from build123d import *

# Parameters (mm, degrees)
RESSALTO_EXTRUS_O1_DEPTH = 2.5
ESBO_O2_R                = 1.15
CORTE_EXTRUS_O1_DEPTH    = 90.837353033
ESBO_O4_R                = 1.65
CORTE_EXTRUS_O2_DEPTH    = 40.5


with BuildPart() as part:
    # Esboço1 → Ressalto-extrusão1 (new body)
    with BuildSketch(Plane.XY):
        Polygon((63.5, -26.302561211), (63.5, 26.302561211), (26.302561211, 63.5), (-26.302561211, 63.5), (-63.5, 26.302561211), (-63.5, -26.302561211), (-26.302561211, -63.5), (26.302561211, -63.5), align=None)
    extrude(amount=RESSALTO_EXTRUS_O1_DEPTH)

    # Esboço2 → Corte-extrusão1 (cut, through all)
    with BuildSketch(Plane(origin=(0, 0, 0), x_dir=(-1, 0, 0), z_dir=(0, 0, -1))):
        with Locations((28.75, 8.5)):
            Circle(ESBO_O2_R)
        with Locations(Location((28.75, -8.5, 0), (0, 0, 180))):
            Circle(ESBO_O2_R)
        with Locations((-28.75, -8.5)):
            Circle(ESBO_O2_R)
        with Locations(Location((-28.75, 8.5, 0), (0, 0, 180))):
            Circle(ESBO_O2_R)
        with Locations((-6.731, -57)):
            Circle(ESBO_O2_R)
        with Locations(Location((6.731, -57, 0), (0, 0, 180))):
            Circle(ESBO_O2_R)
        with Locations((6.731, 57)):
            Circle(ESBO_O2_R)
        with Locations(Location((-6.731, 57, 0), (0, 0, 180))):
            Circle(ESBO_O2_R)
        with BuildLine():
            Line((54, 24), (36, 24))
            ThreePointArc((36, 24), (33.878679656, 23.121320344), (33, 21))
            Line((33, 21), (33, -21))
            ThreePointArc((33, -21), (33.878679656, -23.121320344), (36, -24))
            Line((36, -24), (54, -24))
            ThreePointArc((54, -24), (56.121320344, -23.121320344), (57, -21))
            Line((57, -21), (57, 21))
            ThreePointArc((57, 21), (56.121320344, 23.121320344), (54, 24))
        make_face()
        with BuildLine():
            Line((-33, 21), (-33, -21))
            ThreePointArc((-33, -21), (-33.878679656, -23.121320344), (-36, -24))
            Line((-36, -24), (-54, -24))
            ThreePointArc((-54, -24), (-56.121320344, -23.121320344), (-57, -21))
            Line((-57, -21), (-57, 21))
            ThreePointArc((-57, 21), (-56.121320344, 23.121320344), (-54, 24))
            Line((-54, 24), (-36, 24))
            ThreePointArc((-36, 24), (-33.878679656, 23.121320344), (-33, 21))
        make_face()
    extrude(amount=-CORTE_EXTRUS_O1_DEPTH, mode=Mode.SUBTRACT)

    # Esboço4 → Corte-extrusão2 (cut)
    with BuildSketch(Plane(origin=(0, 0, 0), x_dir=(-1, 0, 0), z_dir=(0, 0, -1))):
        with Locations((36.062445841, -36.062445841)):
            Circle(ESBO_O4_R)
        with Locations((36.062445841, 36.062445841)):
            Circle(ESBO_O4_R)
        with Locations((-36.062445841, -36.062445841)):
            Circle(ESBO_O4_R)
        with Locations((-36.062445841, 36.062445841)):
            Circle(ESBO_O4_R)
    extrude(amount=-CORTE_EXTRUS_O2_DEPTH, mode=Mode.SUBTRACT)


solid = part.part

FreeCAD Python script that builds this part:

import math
import FreeCAD as App
import Part
import Sketcher

V = App.Vector

doc = App.newDocument("Part")
body = doc.addObject("PartDesign::Body", "Body")

sketch1 = doc.addObject("Sketcher::SketchObject", "Sketch")
body.addObject(sketch1)
sketch1.AttachmentSupport = (doc.XY_Plane, [""])
sketch1.MapMode = "FlatFace"
sketch1.addGeometry([
    Part.LineSegment(V(64, -26, 0), V(64, 26, 0)),
    Part.LineSegment(V(64, 26, 0), V(26, 64, 0)),
    Part.LineSegment(V(26, 64, 0), V(-26, 64, 0)),
    Part.LineSegment(V(-26, 64, 0), V(-64, 26, 0)),
    Part.LineSegment(V(-64, 26, 0), V(-64, -26, 0)),
    Part.LineSegment(V(-64, -26, 0), V(-26, -64, 0)),
    Part.LineSegment(V(-26, -64, 0), V(26, -64, 0)),
    Part.LineSegment(V(26, -64, 0), V(64, -26, 0)),
], False)
sketch1.addConstraint([
    Sketcher.Constraint("Coincident", 0, 2, 1, 1),
    Sketcher.Constraint("Coincident", 1, 2, 2, 1),
    Sketcher.Constraint("Coincident", 2, 2, 3, 1),
    Sketcher.Constraint("Coincident", 3, 2, 4, 1),
    Sketcher.Constraint("Coincident", 4, 2, 5, 1),
    Sketcher.Constraint("Coincident", 5, 2, 6, 1),
    Sketcher.Constraint("Coincident", 6, 2, 7, 1),
    Sketcher.Constraint("Coincident", 7, 2, 0, 1),
    Sketcher.Constraint("Vertical", 0),
    Sketcher.Constraint("Horizontal", 2),
    Sketcher.Constraint("Vertical", 4),
    Sketcher.Constraint("Horizontal", 6),
    Sketcher.Constraint("Symmetric", 0, 2, 4, 2, -1, 1),
    Sketcher.Constraint("Symmetric", 1, 2, 5, 2, -1, 1),
    Sketcher.Constraint("Perpendicular", 1, 3),
    Sketcher.Constraint("Perpendicular", 5, 7),
    Sketcher.Constraint("Horizontal", 0, 2, 3, 2),
    Sketcher.Constraint("Horizontal", 4, 2, 7, 2),
    Sketcher.Constraint("Vertical", 2, 2, 5, 2),
    Sketcher.Constraint("Equal", 6, 0),
    Sketcher.Constraint("DistanceX", 3, 2, 0, 2, 127.0),
    Sketcher.Constraint("DistanceX", 2, 2, 2, 1, 52.605122),
])
pad1 = doc.addObject("PartDesign::Pad", "Pad")
body.addObject(pad1)
pad1.Profile = sketch1
pad1.Length = 2.5

sketch2 = doc.addObject("Sketcher::SketchObject", "Sketch001")
body.addObject(sketch2)
sketch2.AttachmentSupport = (doc.XY_Plane, [""])
sketch2.MapMode = "FlatFace"
sketch2.addGeometry([
    Part.Circle(V(-28.8, 8.5, 0), V(0, 0, 1), 1.1),
    Part.Circle(V(-28.8, -8.5, 0), V(0, 0, 1), 1.1),
    Part.Circle(V(28.8, -8.5, 0), V(0, 0, 1), 1.1),
    Part.Circle(V(28.8, 8.5, 0), V(0, 0, 1), 1.1),
    Part.Circle(V(6.7, -57, 0), V(0, 0, 1), 1.1),
    Part.Circle(V(-6.7, -57, 0), V(0, 0, 1), 1.1),
    Part.Circle(V(-6.7, 57, 0), V(0, 0, 1), 1.1),
    Part.Circle(V(6.7, 57, 0), V(0, 0, 1), 1.1),
    Part.LineSegment(V(-54, 24, 0), V(-36, 24, 0)),
    Part.ArcOfCircle(Part.Circle(V(-36, 21, 0), V(0, 0, 1), 3), math.radians(0), math.radians(90)),
    Part.LineSegment(V(-33, 21, 0), V(-33, -21, 0)),
    Part.ArcOfCircle(Part.Circle(V(-36, -21, 0), V(0, 0, 1), 3), math.radians(-90), math.radians(0)),
    Part.LineSegment(V(-36, -24, 0), V(-54, -24, 0)),
    Part.ArcOfCircle(Part.Circle(V(-54, -21, 0), V(0, 0, 1), 3), math.radians(180), math.radians(270)),
    Part.LineSegment(V(-57, -21, 0), V(-57, 21, 0)),
    Part.ArcOfCircle(Part.Circle(V(-54, 21, 0), V(0, 0, 1), 3), math.radians(90), math.radians(180)),
    Part.LineSegment(V(33, -21, 0), V(33, 21, 0)),
    Part.ArcOfCircle(Part.Circle(V(36, 21, 0), V(0, 0, 1), 3), math.radians(90), math.radians(180)),
    Part.LineSegment(V(36, 24, 0), V(54, 24, 0)),
    Part.ArcOfCircle(Part.Circle(V(54, 21, 0), V(0, 0, 1), 3), math.radians(0), math.radians(90)),
    Part.LineSegment(V(57, 21, 0), V(57, -21, 0)),
    Part.ArcOfCircle(Part.Circle(V(54, -21, 0), V(0, 0, 1), 3), math.radians(-90), math.radians(0)),
    Part.LineSegment(V(54, -24, 0), V(36, -24, 0)),
    Part.ArcOfCircle(Part.Circle(V(36, -21, 0), V(0, 0, 1), 3), math.radians(180), math.radians(270)),
], False)
sketch2.addConstraint([
    Sketcher.Constraint("Tangent", 8, 2, 9, 2),
    Sketcher.Constraint("Tangent", 9, 1, 10, 1),
    Sketcher.Constraint("Tangent", 10, 2, 11, 2),
    Sketcher.Constraint("Tangent", 11, 1, 12, 1),
    Sketcher.Constraint("Tangent", 12, 2, 13, 2),
    Sketcher.Constraint("Tangent", 13, 1, 14, 1),
    Sketcher.Constraint("Tangent", 14, 2, 15, 2),
    Sketcher.Constraint("Tangent", 15, 1, 8, 1),
    Sketcher.Constraint("Tangent", 16, 2, 17, 2),
    Sketcher.Constraint("Tangent", 17, 1, 18, 1),
    Sketcher.Constraint("Tangent", 18, 2, 19, 2),
    Sketcher.Constraint("Tangent", 19, 1, 20, 1),
    Sketcher.Constraint("Tangent", 20, 2, 21, 2),
    Sketcher.Constraint("Tangent", 21, 1, 22, 1),
    Sketcher.Constraint("Tangent", 22, 2, 23, 2),
    Sketcher.Constraint("Tangent", 23, 1, 16, 1),
    Sketcher.Constraint("Horizontal", 8),
    Sketcher.Constraint("Vertical", 10),
    Sketcher.Constraint("Horizontal", 12),
    Sketcher.Constraint("Vertical", 14),
    Sketcher.Constraint("Vertical", 16),
    Sketcher.Constraint("Horizontal", 18),
    Sketcher.Constraint("Vertical", 20),
    Sketcher.Constraint("Horizontal", 22),
    Sketcher.Constraint("Equal", 0, 1),
    Sketcher.Constraint("Equal", 1, 2),
    Sketcher.Constraint("Equal", 2, 3),
    Sketcher.Constraint("Equal", 3, 4),
    Sketcher.Constraint("Equal", 4, 5),
    Sketcher.Constraint("Equal", 5, 6),
    Sketcher.Constraint("Equal", 6, 7),
    Sketcher.Constraint("Equal", 9, 11),
    Sketcher.Constraint("Equal", 11, 13),
    Sketcher.Constraint("Equal", 13, 15),
    Sketcher.Constraint("Equal", 15, 17),
    Sketcher.Constraint("Equal", 17, 19),
    Sketcher.Constraint("Equal", 19, 21),
    Sketcher.Constraint("Equal", 21, 23),
    Sketcher.Constraint("Symmetric", 0, 3, 2, 3, -1, 1),
    Sketcher.Constraint("Symmetric", 1, 3, 3, 3, -1, 1),
    Sketcher.Constraint("Symmetric", 4, 3, 6, 3, -1, 1),
    Sketcher.Constraint("Symmetric", 5, 3, 7, 3, -1, 1),
    Sketcher.Constraint("Symmetric", 11, 3, 17, 3, -1, 1),
    Sketcher.Constraint("Symmetric", 15, 3, 21, 3, -1, 1),
    Sketcher.Constraint("Symmetric", 1, 3, 2, 3, -2),
    Sketcher.Constraint("Symmetric", 4, 3, 5, 3, -2),
    Sketcher.Constraint("Horizontal", 15, 3, 17, 3),
    Sketcher.Constraint("Radius", 9, 3.0),
    Sketcher.Constraint("Diameter", 0, 2.3),
    Sketcher.Constraint("DistanceX", 8, 1, 8, 2, 18.0),
    Sketcher.Constraint("DistanceY", 10, 2, 10, 1, 42.0),
    Sketcher.Constraint("DistanceY", 4, 3, -1, 1, 57.0),
    Sketcher.Constraint("DistanceX", 9, 3, -1, 1, 36.0),
    Sketcher.Constraint("DistanceY", 1, 3, 0, 3, 17.0),
    Sketcher.Constraint("DistanceX", 1, 3, 2, 3, 57.5),
    Sketcher.Constraint("DistanceX", -1, 1, 4, 3, 6.731),
])
pocket1 = doc.addObject("PartDesign::Pocket", "Pocket")
body.addObject(pocket1)
pocket1.Profile = sketch2
pocket1.Type = "ThroughAll"
pocket1.Reversed = True

sketch3 = doc.addObject("Sketcher::SketchObject", "Sketch002")
body.addObject(sketch3)
sketch3.AttachmentSupport = (doc.XY_Plane, [""])
sketch3.MapMode = "FlatFace"
sketch3.addGeometry([
    Part.Circle(V(-36.1, -36.1, 0), V(0, 0, 1), 1.6),
    Part.Circle(V(-36.1, 36.1, 0), V(0, 0, 1), 1.6),
    Part.Circle(V(36.1, -36.1, 0), V(0, 0, 1), 1.6),
    Part.Circle(V(36.1, 36.1, 0), V(0, 0, 1), 1.6),
], False)
sketch3.addConstraint([
    Sketcher.Constraint("Equal", 0, 1),
    Sketcher.Constraint("Equal", 1, 2),
    Sketcher.Constraint("Equal", 2, 3),
    Sketcher.Constraint("Symmetric", 1, 3, 2, 3, -1, 1),
    Sketcher.Constraint("Symmetric", 0, 3, 3, 3, -1, 1),
    Sketcher.Constraint("Symmetric", 0, 3, 2, 3, -2),
    Sketcher.Constraint("Diameter", 0, 3.3),
    Sketcher.Constraint("DistanceY", 0, 3, 1, 3, 72.124892),
    Sketcher.Constraint("DistanceX", 0, 3, 2, 3, 72.124892),
])
pocket2 = doc.addObject("PartDesign::Pocket", "Pocket001")
body.addObject(pocket2)
pocket2.Profile = sketch3
pocket2.Length = 40.5
pocket2.Reversed = True

doc.recompute()
